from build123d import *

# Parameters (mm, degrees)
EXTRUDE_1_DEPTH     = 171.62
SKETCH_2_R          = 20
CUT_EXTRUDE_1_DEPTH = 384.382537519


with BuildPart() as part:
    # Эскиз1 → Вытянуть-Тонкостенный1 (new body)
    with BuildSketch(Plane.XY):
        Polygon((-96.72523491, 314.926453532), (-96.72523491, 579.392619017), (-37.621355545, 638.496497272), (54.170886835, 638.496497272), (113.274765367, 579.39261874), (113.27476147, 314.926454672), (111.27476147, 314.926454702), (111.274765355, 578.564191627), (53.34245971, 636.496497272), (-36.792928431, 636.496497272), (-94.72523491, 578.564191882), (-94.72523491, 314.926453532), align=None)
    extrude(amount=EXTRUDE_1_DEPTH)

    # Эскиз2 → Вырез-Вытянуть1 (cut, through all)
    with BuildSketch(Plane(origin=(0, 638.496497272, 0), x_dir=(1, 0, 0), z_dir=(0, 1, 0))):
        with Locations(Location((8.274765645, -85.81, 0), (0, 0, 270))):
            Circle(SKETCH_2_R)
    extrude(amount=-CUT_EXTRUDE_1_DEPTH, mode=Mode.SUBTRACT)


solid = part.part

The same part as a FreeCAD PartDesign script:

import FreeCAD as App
import Part
import Sketcher

V = App.Vector
Q = App.Units.Quantity

doc = App.newDocument("Part")
params = doc.addObject("Spreadsheet::Sheet", "Params")
for row, (alias, value) in enumerate([
    ("sketch1_width", "2 mm"),
    ("pad1_length", "171.62 mm"),
    ("sketch2_diameter", "40 mm"),
], start=1):
    params.set(f"A{row}", alias)
    params.set(f"B{row}", "=" + value)
    params.setAlias(f"B{row}", alias)

body = doc.addObject("PartDesign::Body", "Body")

# Sketch on XY plane
sketch1 = doc.addObject("Sketcher::SketchObject", "Sketch")
body.addObject(sketch1)
sketch1.AttachmentSupport = (doc.XY_Plane, [""])
sketch1.MapMode = "FlatFace"
sketch1.addGeometry([
    Part.LineSegment(V(-96.7, 579.4, 0), V(-96.7, 314.9, 0)),  # 0
    Part.LineSegment(V(-96.7, 314.9, 0), V(-94.7, 314.9, 0)),  # 1
    Part.LineSegment(V(-94.7, 314.9, 0), V(-94.7, 578.6, 0)),  # 2
    Part.LineSegment(V(-94.7, 578.6, 0), V(-36.8, 636.5, 0)),  # 3
    Part.LineSegment(V(-36.8, 636.5, 0), V(53.3, 636.5, 0)),  # 4
    Part.LineSegment(V(53.3, 636.5, 0), V(111.3, 578.6, 0)),  # 5
    Part.LineSegment(V(111.3, 578.6, 0), V(111.3, 314.9, 0)),  # 6
    Part.LineSegment(V(111.3, 314.9, 0), V(113.3, 314.9, 0)),  # 7
    Part.LineSegment(V(113.3, 314.9, 0), V(113.3, 579.4, 0)),  # 8
    Part.LineSegment(V(113.3, 579.4, 0), V(54.2, 638.5, 0)),  # 9
    Part.LineSegment(V(54.2, 638.5, 0), V(-37.6, 638.5, 0)),  # 10
    Part.LineSegment(V(-37.6, 638.5, 0), V(-96.7, 579.4, 0)),  # 11
], False)
sketch1.addConstraint([
    Sketcher.Constraint("Coincident", 0, 2, 1, 1),
    Sketcher.Constraint("Coincident", 1, 2, 2, 1),
    Sketcher.Constraint("Coincident", 2, 2, 3, 1),
    Sketcher.Constraint("Coincident", 3, 2, 4, 1),
    Sketcher.Constraint("Coincident", 4, 2, 5, 1),
    Sketcher.Constraint("Coincident", 5, 2, 6, 1),
    Sketcher.Constraint("Coincident", 6, 2, 7, 1),
    Sketcher.Constraint("Coincident", 7, 2, 8, 1),
    Sketcher.Constraint("Coincident", 8, 2, 9, 1),
    Sketcher.Constraint("Coincident", 9, 2, 10, 1),
    Sketcher.Constraint("Coincident", 10, 2, 11, 1),
    Sketcher.Constraint("Coincident", 11, 2, 0, 1),
    Sketcher.Constraint("Vertical", 0),
    Sketcher.Constraint("Horizontal", 1),
    Sketcher.Constraint("Vertical", 2),
    Sketcher.Constraint("Horizontal", 4),
    Sketcher.Constraint("Horizontal", 7),
    Sketcher.Constraint("Horizontal", 10),
    Sketcher.Constraint("Perpendicular", 3, 5),
    Sketcher.Constraint("Parallel", 6, 8),
    Sketcher.Constraint("Parallel", 5, 9),
    Sketcher.Constraint("Perpendicular", 9, 11),
    Sketcher.Constraint("Horizontal", 2, 2, 5, 2),
    Sketcher.Constraint("Horizontal", 1, 2, 6, 2),
    Sketcher.Constraint("Horizontal", 8, 2, 11, 2),
    Sketcher.Constraint("Equal", 1, 7),
    Sketcher.Constraint("Equal", 3, 5),
    Sketcher.Constraint("DistanceX", 1, 1, 1, 2, Q("2 mm")),
    Sketcher.Constraint("Angle", 6, Q("-90.000001 deg")),
    Sketcher.Constraint("DistanceX", 2, 2, 5, 2, Q("206 mm")),
    Sketcher.Constraint("DistanceY", 4, 2, 9, 2, Q("2 mm")),
    Sketcher.Constraint("DistanceX", 4, 1, 4, 2, Q("90.135388 mm")),
    Sketcher.Constraint("DistanceY", 2, 1, 2, 2, Q("263.637738 mm")),
    Sketcher.Constraint("DistanceX", 10, 2, 10, 1, Q("91.792242 mm")),
    Sketcher.Constraint("DistanceY", -1, 1, 2, 2, Q("578.564192 mm")),
    Sketcher.Constraint("DistanceX", 3, 2, -1, 1, Q("36.792928 mm")),
])
sketch1.setExpression("Constraints[27]", "Params.sketch1_width")
pad1 = doc.addObject("PartDesign::Pad", "Pad")
body.addObject(pad1)
pad1.Profile = sketch1
pad1.setExpression("Length", "Params.pad1_length")

# Sketch on XZ plane
sketch2 = doc.addObject("Sketcher::SketchObject", "Sketch001")
body.addObject(sketch2)
sketch2.AttachmentSupport = (doc.XZ_Plane, [""])
sketch2.MapMode = "FlatFace"
sketch2.AttachmentOffset = App.Placement(V(0, 0, -638.496497), App.Rotation())
sketch2.addGeometry(Part.Circle(V(8, 86, 0), V(0, 0, 1), 20), False)
sketch2.addConstraint([
    Sketcher.Constraint("Diameter", 0, Q("40 mm")),
    Sketcher.Constraint("DistanceY", -1, 1, 0, 3, Q("85.81 mm")),
    Sketcher.Constraint("DistanceX", -1, 1, 0, 3, Q("8.274766 mm")),
])
sketch2.setExpression("Constraints[0]", "Params.sketch2_diameter")
pocket1 = doc.addObject("PartDesign::Pocket", "Pocket")
body.addObject(pocket1)
pocket1.Profile = sketch2
pocket1.Type = "ThroughAll"
pocket1.Reversed = True

doc.recompute()
